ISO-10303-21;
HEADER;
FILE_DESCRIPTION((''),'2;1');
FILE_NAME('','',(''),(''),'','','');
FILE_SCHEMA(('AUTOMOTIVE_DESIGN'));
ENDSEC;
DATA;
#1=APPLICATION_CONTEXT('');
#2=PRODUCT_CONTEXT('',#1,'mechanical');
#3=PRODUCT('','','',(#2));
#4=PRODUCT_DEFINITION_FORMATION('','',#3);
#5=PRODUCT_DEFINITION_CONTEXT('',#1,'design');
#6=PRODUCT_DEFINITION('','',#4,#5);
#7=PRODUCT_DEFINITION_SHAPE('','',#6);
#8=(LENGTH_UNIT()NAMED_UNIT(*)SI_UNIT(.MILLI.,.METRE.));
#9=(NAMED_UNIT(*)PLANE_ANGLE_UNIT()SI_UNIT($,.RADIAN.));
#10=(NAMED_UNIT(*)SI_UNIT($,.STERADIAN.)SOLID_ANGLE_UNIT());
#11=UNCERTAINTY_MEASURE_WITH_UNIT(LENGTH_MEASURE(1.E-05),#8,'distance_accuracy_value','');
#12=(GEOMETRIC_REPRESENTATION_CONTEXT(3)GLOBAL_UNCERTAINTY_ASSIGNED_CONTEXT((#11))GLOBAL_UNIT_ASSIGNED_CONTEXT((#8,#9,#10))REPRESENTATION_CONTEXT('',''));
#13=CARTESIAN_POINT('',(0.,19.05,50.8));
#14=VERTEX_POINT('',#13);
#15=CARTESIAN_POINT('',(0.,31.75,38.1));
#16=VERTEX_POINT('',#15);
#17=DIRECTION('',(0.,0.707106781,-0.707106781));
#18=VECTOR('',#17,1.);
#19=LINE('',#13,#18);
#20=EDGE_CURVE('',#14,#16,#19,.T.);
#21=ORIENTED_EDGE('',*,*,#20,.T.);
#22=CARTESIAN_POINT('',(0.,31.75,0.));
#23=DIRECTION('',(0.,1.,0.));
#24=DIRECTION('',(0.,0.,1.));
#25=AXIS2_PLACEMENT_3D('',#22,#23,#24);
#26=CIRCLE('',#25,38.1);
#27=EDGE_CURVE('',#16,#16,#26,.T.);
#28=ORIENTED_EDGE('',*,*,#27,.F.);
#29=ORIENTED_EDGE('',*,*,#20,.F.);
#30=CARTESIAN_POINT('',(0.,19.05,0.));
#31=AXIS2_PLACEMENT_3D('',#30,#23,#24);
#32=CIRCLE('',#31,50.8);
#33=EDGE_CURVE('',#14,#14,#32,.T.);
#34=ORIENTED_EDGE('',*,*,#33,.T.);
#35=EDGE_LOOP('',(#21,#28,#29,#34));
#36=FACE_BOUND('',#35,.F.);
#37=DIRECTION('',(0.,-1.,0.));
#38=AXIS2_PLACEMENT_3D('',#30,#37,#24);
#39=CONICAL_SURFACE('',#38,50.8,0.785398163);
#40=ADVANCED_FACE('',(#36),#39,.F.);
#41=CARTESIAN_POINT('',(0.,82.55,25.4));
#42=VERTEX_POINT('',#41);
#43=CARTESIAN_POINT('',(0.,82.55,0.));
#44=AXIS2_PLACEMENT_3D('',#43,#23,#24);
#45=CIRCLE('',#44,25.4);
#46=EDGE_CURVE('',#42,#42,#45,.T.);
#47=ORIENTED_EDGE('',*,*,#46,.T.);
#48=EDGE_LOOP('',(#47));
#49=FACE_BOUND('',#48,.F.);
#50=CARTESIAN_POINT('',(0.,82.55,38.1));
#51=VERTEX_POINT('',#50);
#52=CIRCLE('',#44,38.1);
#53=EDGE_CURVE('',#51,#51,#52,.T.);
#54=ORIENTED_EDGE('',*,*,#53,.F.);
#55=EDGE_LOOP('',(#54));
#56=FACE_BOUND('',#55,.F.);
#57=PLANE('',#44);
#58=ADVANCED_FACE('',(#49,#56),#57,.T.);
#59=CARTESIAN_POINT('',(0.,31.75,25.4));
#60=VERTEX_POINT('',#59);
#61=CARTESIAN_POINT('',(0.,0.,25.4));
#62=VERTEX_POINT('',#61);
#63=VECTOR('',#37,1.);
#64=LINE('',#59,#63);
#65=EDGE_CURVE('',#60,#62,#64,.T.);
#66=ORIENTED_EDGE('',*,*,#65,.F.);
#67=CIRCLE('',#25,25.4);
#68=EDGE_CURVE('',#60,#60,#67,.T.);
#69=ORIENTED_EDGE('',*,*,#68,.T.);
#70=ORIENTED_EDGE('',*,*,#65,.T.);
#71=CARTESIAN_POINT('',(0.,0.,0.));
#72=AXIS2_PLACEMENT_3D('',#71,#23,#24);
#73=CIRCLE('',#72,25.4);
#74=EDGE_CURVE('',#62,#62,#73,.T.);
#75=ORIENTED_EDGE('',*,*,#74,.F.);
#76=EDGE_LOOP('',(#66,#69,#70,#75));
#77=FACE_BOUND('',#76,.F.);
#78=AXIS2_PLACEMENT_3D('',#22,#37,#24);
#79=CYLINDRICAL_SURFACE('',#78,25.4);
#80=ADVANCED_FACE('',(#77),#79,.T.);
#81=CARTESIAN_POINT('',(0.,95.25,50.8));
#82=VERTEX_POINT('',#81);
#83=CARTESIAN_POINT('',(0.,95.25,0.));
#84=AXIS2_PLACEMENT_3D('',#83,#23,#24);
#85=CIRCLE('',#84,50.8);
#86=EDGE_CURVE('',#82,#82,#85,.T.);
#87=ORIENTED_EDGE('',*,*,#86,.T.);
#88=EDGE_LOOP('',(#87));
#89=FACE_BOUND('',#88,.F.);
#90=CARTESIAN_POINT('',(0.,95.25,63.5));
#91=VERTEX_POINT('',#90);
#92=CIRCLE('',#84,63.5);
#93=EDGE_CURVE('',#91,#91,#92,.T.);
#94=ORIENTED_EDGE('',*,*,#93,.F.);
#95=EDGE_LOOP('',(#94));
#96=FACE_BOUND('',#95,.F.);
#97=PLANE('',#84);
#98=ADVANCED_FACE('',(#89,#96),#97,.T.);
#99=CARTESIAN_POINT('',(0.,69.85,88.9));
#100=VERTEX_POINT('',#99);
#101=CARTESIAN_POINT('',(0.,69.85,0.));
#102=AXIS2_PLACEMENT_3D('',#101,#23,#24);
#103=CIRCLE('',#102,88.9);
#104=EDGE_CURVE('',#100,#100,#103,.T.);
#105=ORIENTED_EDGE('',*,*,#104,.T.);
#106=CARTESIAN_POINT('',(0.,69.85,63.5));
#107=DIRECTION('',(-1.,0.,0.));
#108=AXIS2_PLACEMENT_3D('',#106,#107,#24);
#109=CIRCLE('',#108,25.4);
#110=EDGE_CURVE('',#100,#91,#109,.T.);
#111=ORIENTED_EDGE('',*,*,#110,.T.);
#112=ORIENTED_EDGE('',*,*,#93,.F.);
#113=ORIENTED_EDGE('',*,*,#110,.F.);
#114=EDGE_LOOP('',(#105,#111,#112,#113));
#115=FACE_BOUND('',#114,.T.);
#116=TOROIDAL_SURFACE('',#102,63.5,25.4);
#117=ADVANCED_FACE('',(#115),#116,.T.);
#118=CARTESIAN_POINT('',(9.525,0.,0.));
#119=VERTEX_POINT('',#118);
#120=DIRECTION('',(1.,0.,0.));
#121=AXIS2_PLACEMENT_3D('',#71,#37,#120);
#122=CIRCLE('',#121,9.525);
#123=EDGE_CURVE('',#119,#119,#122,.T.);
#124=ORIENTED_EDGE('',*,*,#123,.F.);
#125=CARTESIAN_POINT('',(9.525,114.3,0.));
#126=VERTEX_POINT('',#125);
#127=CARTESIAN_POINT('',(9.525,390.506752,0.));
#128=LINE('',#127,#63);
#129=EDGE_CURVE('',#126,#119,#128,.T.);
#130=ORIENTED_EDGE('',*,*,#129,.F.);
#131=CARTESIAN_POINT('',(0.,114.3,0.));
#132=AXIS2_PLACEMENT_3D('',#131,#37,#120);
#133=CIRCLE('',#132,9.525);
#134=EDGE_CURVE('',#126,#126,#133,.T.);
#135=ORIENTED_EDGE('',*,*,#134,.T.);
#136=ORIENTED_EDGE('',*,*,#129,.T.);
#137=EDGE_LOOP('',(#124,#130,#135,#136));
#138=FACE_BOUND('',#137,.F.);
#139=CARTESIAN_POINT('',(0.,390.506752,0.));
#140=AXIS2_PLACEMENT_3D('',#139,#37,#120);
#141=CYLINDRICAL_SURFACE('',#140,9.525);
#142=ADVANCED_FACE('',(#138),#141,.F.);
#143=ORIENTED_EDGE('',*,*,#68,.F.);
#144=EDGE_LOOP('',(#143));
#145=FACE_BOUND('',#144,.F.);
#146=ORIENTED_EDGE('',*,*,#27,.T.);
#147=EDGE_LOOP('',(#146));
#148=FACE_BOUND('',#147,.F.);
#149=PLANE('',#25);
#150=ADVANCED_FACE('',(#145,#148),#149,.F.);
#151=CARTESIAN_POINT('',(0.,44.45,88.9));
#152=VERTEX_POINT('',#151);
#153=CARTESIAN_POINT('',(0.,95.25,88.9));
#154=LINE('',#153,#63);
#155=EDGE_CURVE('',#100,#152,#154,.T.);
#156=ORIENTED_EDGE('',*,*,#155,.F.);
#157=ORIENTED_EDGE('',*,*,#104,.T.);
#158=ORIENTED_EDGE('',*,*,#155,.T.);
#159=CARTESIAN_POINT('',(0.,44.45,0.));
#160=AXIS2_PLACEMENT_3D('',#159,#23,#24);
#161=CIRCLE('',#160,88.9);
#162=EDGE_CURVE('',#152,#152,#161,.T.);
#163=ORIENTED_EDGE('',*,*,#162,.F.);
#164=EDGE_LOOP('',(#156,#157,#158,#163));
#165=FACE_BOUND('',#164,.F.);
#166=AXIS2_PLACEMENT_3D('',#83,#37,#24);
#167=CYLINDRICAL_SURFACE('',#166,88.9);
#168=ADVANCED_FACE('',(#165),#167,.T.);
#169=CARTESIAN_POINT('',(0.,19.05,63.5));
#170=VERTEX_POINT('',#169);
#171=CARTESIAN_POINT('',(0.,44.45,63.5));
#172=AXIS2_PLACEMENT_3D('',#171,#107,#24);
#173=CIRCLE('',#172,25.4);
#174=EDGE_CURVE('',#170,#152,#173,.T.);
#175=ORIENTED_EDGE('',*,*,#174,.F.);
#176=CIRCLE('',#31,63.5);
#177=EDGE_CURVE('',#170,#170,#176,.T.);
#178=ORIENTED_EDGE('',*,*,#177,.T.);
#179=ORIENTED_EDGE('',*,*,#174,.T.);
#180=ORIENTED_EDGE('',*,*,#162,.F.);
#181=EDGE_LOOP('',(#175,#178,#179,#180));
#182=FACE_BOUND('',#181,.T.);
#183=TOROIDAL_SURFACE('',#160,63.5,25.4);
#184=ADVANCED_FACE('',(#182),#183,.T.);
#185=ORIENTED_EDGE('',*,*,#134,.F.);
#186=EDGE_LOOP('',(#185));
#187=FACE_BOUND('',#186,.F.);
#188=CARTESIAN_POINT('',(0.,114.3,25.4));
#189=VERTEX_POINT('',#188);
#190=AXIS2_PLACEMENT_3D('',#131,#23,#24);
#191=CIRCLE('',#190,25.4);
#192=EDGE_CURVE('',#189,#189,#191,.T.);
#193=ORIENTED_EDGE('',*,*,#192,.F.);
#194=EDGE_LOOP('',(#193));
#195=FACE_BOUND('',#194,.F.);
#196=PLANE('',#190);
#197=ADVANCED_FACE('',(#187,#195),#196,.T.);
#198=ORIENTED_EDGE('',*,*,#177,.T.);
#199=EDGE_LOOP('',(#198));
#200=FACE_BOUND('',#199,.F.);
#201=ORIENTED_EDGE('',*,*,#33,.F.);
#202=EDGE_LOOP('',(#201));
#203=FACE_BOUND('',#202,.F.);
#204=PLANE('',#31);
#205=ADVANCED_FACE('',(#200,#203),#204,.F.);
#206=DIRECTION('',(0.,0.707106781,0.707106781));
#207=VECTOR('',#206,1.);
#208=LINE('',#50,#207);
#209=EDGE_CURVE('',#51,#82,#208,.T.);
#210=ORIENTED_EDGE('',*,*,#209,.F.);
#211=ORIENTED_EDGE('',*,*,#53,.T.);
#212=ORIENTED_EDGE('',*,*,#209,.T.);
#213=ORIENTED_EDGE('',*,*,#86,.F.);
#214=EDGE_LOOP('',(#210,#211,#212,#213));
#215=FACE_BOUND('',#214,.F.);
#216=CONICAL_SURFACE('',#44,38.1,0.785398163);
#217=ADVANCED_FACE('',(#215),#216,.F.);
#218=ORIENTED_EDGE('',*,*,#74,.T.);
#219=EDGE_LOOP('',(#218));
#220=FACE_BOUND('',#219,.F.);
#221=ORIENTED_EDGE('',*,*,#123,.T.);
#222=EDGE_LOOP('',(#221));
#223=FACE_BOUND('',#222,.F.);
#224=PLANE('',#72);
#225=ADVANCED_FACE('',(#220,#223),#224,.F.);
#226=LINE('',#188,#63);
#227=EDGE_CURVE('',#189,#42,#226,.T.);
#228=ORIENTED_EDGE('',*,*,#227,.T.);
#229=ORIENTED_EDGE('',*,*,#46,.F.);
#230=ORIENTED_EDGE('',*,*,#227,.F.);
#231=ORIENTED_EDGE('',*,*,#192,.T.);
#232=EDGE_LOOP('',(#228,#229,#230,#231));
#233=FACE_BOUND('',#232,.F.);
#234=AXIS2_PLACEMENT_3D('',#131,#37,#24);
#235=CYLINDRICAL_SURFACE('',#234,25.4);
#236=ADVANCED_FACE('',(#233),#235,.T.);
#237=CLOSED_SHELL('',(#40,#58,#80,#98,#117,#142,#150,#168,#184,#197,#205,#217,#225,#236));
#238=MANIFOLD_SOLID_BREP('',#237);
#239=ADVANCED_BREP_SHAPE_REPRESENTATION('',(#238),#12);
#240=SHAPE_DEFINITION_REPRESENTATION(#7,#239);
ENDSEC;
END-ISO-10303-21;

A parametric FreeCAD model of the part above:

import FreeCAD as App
import Part
import Sketcher

V = App.Vector
Q = App.Units.Quantity


def edges_at(feature, points):
    """Names of the edges that pass closest to the given points."""
    edges = feature.Shape.Edges
    near = lambda p: min(range(len(edges)), key=lambda i: edges[i].distToShape(Part.Vertex(*p))[0])
    return sorted({f"Edge{near(p) + 1}" for p in points})


def add_polygon(sketch, points):
    """Adds a closed chain of lines whose ends are joined by coincident constraints."""
    first, n = sketch.GeometryCount, len(points)
    for a, b in zip(points, points[1:] + points[:1]):
        sketch.addGeometry(Part.LineSegment(App.Vector(*a, 0), App.Vector(*b, 0)), False)
    for i in range(n):
        sketch.addConstraint(Sketcher.Constraint("Coincident", first + i, 2, first + (i + 1) % n, 1))

doc = App.newDocument("Part")
body = doc.addObject("PartDesign::Body", "Body")

# Sketch on YZ plane
sketch1 = body.newObject("Sketcher::SketchObject", "Sketch")
sketch1.AttachmentSupport = (doc.getObject("YZ_Plane"), [""])
sketch1.MapMode = "FlatFace"
add_polygon(sketch1, [(0, 25), (0, 0), (114, 0), (114, 25), (83, 25), (83, 38), (95, 51), (95, 89), (19, 89), (19, 51), (32, 38), (32, 25)])  # lines 0-11
sketch1.addConstraint([
    Sketcher.Constraint("Vertical", 0),
    Sketcher.Constraint("Horizontal", 1),
    Sketcher.Constraint("Vertical", 2),
    Sketcher.Constraint("Horizontal", 3),
    Sketcher.Constraint("Vertical", 4),
    Sketcher.Constraint("Vertical", 6),
    Sketcher.Constraint("Horizontal", 7),
    Sketcher.Constraint("Vertical", 8),
    Sketcher.Constraint("Vertical", 10),
    Sketcher.Constraint("Horizontal", 11),
    Sketcher.Constraint("Coincident", 0, 2, -1, 1),
    Sketcher.Constraint("Perpendicular", 5, 9),
    Sketcher.Constraint("Horizontal", 5, 2, 8, 2),
    Sketcher.Constraint("Horizontal", 4, 2, 9, 2),
    Sketcher.Constraint("Horizontal", 3, 2, 10, 2),
    Sketcher.Constraint("Equal", 3, 11),
    Sketcher.Constraint("Equal", 5, 9),
    Sketcher.Constraint("DistanceX", 7, 2, 7, 1, Q("3 in")),
    Sketcher.Constraint("DistanceY", 0, 2, 0, 1, Q("1 in")),
    Sketcher.Constraint("DistanceX", 1, 1, 1, 2, Q("4.5 in")),
    Sketcher.Constraint("DistanceY", 4, 1, 4, 2, Q("0.5 in")),
    Sketcher.Constraint("DistanceY", 6, 1, 6, 2, Q("1.5 in")),
    Sketcher.Constraint("DistanceY", -1, 1, 5, 2, Q("2 in")),
])
revolution = body.newObject("PartDesign::Revolution", "Revolution")
revolution.Profile = sketch1
revolution.ReferenceAxis = (sketch1, ["H_Axis"])
revolution.Angle = 360

# Sketch on XZ plane
sketch2 = body.newObject("Sketcher::SketchObject", "Sketch001")
sketch2.AttachmentSupport = (doc.getObject("XZ_Plane"), [""])
sketch2.MapMode = "FlatFace"
sketch2.AttachmentOffset = App.Placement(V(0, 0, -4.5 * 25.4), App.Rotation())
sketch2.addGeometry(Part.Circle(V(0, 0, 0), V(0, 0, 1), 10), False)
sketch2.addConstraint([
    Sketcher.Constraint("Coincident", 0, 3, -1, 1),
    Sketcher.Constraint("Diameter", 0, Q("0.75 in")),
])
doc.recompute()
hole = body.newObject("PartDesign::Hole", "Hole")
hole.Profile = sketch2
hole.ThreadType = "None"
hole.Diameter = Q("0.75 in")
hole.DepthType = "ThroughAll"
hole.Reversed = True
doc.recompute()

fillet = body.newObject("PartDesign::Fillet", "Fillet")
fillet.Base = (hole, edges_at(hole, [(0, 95.25, -88.9), (0, 19.05, -88.9)]))
fillet.Radius = Q("1 in")

doc.recompute()
